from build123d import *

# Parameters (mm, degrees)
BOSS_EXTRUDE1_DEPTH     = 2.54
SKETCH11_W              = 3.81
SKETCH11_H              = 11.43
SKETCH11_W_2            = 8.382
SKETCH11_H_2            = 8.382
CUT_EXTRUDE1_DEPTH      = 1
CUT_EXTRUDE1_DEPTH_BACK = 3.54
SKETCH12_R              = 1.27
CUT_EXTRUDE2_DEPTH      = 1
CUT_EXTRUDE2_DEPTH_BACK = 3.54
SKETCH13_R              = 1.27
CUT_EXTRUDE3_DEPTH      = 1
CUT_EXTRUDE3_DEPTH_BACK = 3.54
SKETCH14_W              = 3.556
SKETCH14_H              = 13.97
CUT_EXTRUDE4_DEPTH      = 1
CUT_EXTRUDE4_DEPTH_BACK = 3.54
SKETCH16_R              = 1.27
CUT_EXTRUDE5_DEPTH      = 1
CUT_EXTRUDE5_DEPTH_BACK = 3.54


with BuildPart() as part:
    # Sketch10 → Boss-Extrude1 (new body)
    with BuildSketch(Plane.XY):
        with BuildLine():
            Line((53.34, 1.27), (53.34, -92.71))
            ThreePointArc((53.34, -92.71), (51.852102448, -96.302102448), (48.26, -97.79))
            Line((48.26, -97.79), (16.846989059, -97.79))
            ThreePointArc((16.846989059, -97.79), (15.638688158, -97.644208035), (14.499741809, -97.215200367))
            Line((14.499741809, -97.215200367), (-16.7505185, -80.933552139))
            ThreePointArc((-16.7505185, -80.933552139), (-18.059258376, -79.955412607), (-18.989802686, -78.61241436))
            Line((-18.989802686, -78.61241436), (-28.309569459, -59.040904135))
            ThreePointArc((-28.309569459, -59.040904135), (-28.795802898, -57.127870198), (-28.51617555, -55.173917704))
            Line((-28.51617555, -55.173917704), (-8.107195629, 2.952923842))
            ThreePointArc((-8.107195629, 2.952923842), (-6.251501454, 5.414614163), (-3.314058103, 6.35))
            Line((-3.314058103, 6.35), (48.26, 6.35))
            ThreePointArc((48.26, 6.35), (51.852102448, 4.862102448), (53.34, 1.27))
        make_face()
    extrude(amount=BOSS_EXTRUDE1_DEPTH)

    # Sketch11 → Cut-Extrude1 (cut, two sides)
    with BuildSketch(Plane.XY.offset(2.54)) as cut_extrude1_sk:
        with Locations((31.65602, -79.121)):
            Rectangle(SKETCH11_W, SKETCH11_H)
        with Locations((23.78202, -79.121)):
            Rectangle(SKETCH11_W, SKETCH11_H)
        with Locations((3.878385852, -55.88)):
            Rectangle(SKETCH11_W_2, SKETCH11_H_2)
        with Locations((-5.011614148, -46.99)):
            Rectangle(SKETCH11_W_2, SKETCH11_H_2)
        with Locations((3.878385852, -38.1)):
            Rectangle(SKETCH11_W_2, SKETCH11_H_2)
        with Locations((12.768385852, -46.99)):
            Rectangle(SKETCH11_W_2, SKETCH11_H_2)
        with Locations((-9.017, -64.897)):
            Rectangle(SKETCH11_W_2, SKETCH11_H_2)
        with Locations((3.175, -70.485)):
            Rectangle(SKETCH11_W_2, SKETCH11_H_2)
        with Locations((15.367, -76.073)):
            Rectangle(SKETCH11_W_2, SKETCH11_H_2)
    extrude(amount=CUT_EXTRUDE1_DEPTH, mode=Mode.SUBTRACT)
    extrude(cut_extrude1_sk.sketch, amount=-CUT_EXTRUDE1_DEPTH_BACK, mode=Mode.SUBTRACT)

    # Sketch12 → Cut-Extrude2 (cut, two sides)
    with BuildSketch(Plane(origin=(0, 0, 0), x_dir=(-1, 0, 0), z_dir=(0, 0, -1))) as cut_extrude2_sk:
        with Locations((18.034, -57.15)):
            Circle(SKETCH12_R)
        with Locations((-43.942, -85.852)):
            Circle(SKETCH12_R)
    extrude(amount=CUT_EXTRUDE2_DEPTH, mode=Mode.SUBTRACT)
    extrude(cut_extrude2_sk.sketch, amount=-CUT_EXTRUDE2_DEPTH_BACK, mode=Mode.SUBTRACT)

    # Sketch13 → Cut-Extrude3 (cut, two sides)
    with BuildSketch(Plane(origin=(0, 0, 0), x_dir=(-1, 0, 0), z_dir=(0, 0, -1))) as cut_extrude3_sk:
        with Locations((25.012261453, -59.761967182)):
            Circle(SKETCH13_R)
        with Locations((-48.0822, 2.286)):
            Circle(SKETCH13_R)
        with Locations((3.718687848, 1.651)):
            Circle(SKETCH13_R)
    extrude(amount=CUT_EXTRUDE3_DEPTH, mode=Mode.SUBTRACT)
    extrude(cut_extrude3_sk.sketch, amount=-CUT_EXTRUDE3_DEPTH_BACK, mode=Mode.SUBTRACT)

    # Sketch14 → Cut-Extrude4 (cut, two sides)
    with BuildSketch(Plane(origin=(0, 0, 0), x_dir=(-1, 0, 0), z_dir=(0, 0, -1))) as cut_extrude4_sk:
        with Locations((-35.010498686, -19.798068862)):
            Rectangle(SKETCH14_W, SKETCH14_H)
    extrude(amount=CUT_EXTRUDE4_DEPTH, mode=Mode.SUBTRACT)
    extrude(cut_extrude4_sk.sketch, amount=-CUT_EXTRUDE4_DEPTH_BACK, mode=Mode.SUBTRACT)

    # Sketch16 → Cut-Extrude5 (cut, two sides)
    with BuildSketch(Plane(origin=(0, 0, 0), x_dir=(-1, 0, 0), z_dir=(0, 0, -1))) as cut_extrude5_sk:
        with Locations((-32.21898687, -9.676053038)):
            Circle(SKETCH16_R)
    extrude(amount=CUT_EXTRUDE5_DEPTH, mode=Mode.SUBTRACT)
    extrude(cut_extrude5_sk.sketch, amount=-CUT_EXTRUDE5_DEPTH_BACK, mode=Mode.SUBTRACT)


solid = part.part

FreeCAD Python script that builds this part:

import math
import FreeCAD as App
import Part
import Sketcher

V = App.Vector
Q = App.Units.Quantity


def add_polygon(sketch, points):
    """Adds a closed chain of lines whose ends are joined by coincident constraints."""
    first, n = sketch.GeometryCount, len(points)
    for a, b in zip(points, points[1:] + points[:1]):
        sketch.addGeometry(Part.LineSegment(App.Vector(*a, 0), App.Vector(*b, 0)), False)
    for i in range(n):
        sketch.addConstraint(Sketcher.Constraint("Coincident", first + i, 2, first + (i + 1) % n, 1))

doc = App.newDocument("Part")
body = doc.addObject("PartDesign::Body", "Body")

sketch1 = body.newObject("Sketcher::SketchObject", "Sketch")
sketch1.AttachmentSupport = (doc.getObject("XY_Plane"), [""])
sketch1.MapMode = "FlatFace"
sketch1.addGeometry([
    Part.LineSegment(V(53.3, -92.7, 0), V(53.3, 1.3, 0)),
    Part.ArcOfCircle(Part.Circle(V(48.3, 1.3, 0), V(0, 0, 1), 5.1), math.radians(0), math.radians(90)),
    Part.LineSegment(V(48.3, 6.3, 0), V(-3.3, 6.3, 0)),
    Part.ArcOfCircle(Part.Circle(V(-3.3, 1.3, 0), V(0, 0, 1), 5.1), math.radians(90), math.radians(161)),
    Part.LineSegment(V(-8.1, 3, 0), V(-28.5, -55.2, 0)),
    Part.ArcOfCircle(Part.Circle(V(-23.7, -56.9, 0), V(0, 0, 1), 5.1), math.radians(161), math.radians(205)),
    Part.LineSegment(V(-28.3, -59, 0), V(-19, -78.6, 0)),
    Part.ArcOfCircle(Part.Circle(V(-14.4, -76.4, 0), V(0, 0, 1), 5.1), math.radians(-155), math.radians(-118)),
    Part.LineSegment(V(-16.8, -80.9, 0), V(14.5, -97.2, 0)),
    Part.ArcOfCircle(Part.Circle(V(16.8, -92.7, 0), V(0, 0, 1), 5.1), math.radians(-118), math.radians(-90)),
    Part.LineSegment(V(16.8, -97.8, 0), V(48.3, -97.8, 0)),
    Part.ArcOfCircle(Part.Circle(V(48.3, -92.7, 0), V(0, 0, 1), 5.1), math.radians(-90), math.radians(0)),
], False)
sketch1.addConstraint([
    Sketcher.Constraint("Tangent", 0, 2, 1, 1),
    Sketcher.Constraint("Tangent", 1, 2, 2, 1),
    Sketcher.Constraint("Tangent", 2, 2, 3, 1),
    Sketcher.Constraint("Tangent", 3, 2, 4, 1),
    Sketcher.Constraint("Tangent", 4, 2, 5, 1),
    Sketcher.Constraint("Tangent", 5, 2, 6, 1),
    Sketcher.Constraint("Tangent", 6, 2, 7, 1),
    Sketcher.Constraint("Tangent", 7, 2, 8, 1),
    Sketcher.Constraint("Tangent", 8, 2, 9, 1),
    Sketcher.Constraint("Tangent", 9, 2, 10, 1),
    Sketcher.Constraint("Tangent", 10, 2, 11, 1),
    Sketcher.Constraint("Tangent", 11, 2, 0, 1),
    Sketcher.Constraint("Vertical", 0),
    Sketcher.Constraint("Horizontal", 2),
    Sketcher.Constraint("Horizontal", 10),
    Sketcher.Constraint("Equal", 1, 3),
    Sketcher.Constraint("Equal", 3, 5),
    Sketcher.Constraint("Equal", 5, 7),
    Sketcher.Constraint("Equal", 7, 9),
    Sketcher.Constraint("Equal", 9, 11),
    Sketcher.Constraint("Radius", 1, Q("0.2 in")),
    Sketcher.Constraint("DistanceY", 0, 1, 0, 2, Q("3.7 in")),
    Sketcher.Constraint("DistanceX", -1, 1, 1, 3, Q("1.9 in")),
    Sketcher.Constraint("DistanceY", -1, 1, 1, 3, Q("0.05 in")),
    Sketcher.Constraint("DistanceX", 2, 2, 2, 1, Q("51.574058 mm")),
    Sketcher.Constraint("DistanceX", 10, 1, 10, 2, Q("31.413011 mm")),
    Sketcher.Constraint("DistanceY", 8, 2, -1, 1, Q("97.2152 mm")),
    Sketcher.Constraint("DistanceX", 5, 2, 7, 3, Q("13.906298 mm")),
    Sketcher.Constraint("Distance", 4, Q("61.60565 mm")),
    Sketcher.Constraint("Distance", 8, Q("35.23735 mm")),
])
pad1 = body.newObject("PartDesign::Pad", "Pad")
pad1.Profile = sketch1
pad1.Length = Q("0.1 in")

sketch2 = body.newObject("Sketcher::SketchObject", "Sketch001")
sketch2.AttachmentSupport = (doc.getObject("XY_Plane"), [""])
sketch2.MapMode = "FlatFace"
sketch2.AttachmentOffset = App.Placement(V(0, 0, 0.1 * 25.4), App.Rotation())
add_polygon(sketch2, [(29.8, -73.4), (29.8, -84.8), (33.6, -84.8), (33.6, -73.4)])
add_polygon(sketch2, [(21.9, -73.4), (21.9, -84.8), (25.7, -84.8), (25.7, -73.4)])
add_polygon(sketch2, [(-0.3, -51.7), (-0.3, -60.1), (8.1, -60.1), (8.1, -51.7)])
add_polygon(sketch2, [(-9.2, -42.8), (-9.2, -51.2), (-0.8, -51.2), (-0.8, -42.8)])
add_polygon(sketch2, [(-0.3, -33.9), (-0.3, -42.3), (8.1, -42.3), (8.1, -33.9)])
add_polygon(sketch2, [(8.6, -42.8), (8.6, -51.2), (17, -51.2), (17, -42.8)])
add_polygon(sketch2, [(-13.2, -60.7), (-13.2, -69.1), (-4.8, -69.1), (-4.8, -60.7)])
add_polygon(sketch2, [(-1, -66.3), (-1, -74.7), (7.4, -74.7), (7.4, -66.3)])
add_polygon(sketch2, [(11.2, -71.9), (11.2, -80.3), (19.6, -80.3), (19.6, -71.9)])
sketch2.addConstraint([
    Sketcher.Constraint("Vertical", 0),
    Sketcher.Constraint("Horizontal", 1),
    Sketcher.Constraint("Vertical", 2),
    Sketcher.Constraint("Horizontal", 3),
    Sketcher.Constraint("Vertical", 4),
    Sketcher.Constraint("Horizontal", 5),
    Sketcher.Constraint("Vertical", 6),
    Sketcher.Constraint("Horizontal", 7),
    Sketcher.Constraint("Vertical", 8),
    Sketcher.Constraint("Horizontal", 9),
    Sketcher.Constraint("Vertical", 10),
    Sketcher.Constraint("Horizontal", 11),
    Sketcher.Constraint("Vertical", 12),
    Sketcher.Constraint("Horizontal", 13),
    Sketcher.Constraint("Vertical", 14),
    Sketcher.Constraint("Horizontal", 15),
    Sketcher.Constraint("Vertical", 16),
    Sketcher.Constraint("Horizontal", 17),
    Sketcher.Constraint("Vertical", 18),
    Sketcher.Constraint("Horizontal", 19),
    Sketcher.Constraint("Vertical", 20),
    Sketcher.Constraint("Horizontal", 21),
    Sketcher.Constraint("Vertical", 22),
    Sketcher.Constraint("Horizontal", 23),
    Sketcher.Constraint("Vertical", 24),
    Sketcher.Constraint("Horizontal", 25),
    Sketcher.Constraint("Vertical", 26),
    Sketcher.Constraint("Horizontal", 27),
    Sketcher.Constraint("Vertical", 28),
    Sketcher.Constraint("Horizontal", 29),
    Sketcher.Constraint("Vertical", 30),
    Sketcher.Constraint("Horizontal", 31),
    Sketcher.Constraint("Vertical", 32),
    Sketcher.Constraint("Horizontal", 33),
    Sketcher.Constraint("Vertical", 34),
    Sketcher.Constraint("Horizontal", 35),
    Sketcher.Constraint("Horizontal", 1, 2, 4, 2),
    Sketcher.Constraint("Horizontal", 3, 2, 6, 2),
    Sketcher.Constraint("Horizontal", 13, 2, 20, 2),
    Sketcher.Constraint("Horizontal", 15, 2, 22, 2),
    Sketcher.Constraint("Vertical", 11, 2, 16, 2),
    Sketcher.Constraint("Vertical", 10, 2, 17, 2),
    Sketcher.Constraint("Equal", 3, 5),
    Sketcher.Constraint("Equal", 11, 13),
    Sketcher.Constraint("Equal", 19, 21),
    Sketcher.Constraint("Equal", 23, 25),
    Sketcher.Constraint("Equal", 27, 29),
    Sketcher.Constraint("Equal", 31, 33),
    Sketcher.Constraint("Equal", 35, 8),
    Sketcher.Constraint("Equal", 10, 12),
    Sketcher.Constraint("Equal", 14, 16),
    Sketcher.Constraint("Equal", 22, 24),
    Sketcher.Constraint("Equal", 26, 28),
    Sketcher.Constraint("Equal", 30, 32),
    Sketcher.Constraint("DistanceX", 1, 1, 1, 2, Q("0.15 in")),
    Sketcher.Constraint("DistanceX", 9, 1, 9, 2, Q("0.33 in")),
    Sketcher.Constraint("DistanceY", 0, 2, 0, 1, Q("0.45 in")),
    Sketcher.Constraint("DistanceY", 10, 2, 18, 2, Q("0.7 in")),
    Sketcher.Constraint("DistanceY", 0, 2, -1, 1, Q("3.34 in")),
    Sketcher.Constraint("DistanceX", 24, 2, -1, 1, Q("0.52 in")),
    Sketcher.Constraint("DistanceY", 24, 2, -1, 1, Q("2.72 in")),
    Sketcher.Constraint("DistanceX", 28, 2, -1, 1, Q("0.04 in")),
    Sketcher.Constraint("DistanceY", 28, 2, -1, 1, Q("2.94 in")),
    Sketcher.Constraint("DistanceX", -1, 1, 32, 2, Q("0.44 in")),
    Sketcher.Constraint("DistanceY", 32, 2, -1, 1, Q("3.16 in")),
    Sketcher.Constraint("DistanceX", 4, 2, 0, 2, Q("0.31 in")),
    Sketcher.Constraint("DistanceX", 12, 2, 11, 2, Q("0.35 in")),
    Sketcher.Constraint("DistanceY", 11, 2, 12, 2, Q("0.02 in")),
    Sketcher.Constraint("DistanceX", 10, 2, 20, 2, Q("0.02 in")),
    Sketcher.Constraint("DistanceY", 8, 2, -1, 1, Q("2.365 in")),
    Sketcher.Constraint("DistanceX", -1, 1, 0, 2, Q("1.1713 in")),
    Sketcher.Constraint("DistanceX", 8, 2, -1, 1, Q("0.312614 mm")),
])
pocket1 = body.newObject("PartDesign::Pocket", "Pocket")
pocket1.Profile = sketch2
pocket1.Type = "ThroughAll"
pocket1.Midplane = True

sketch3 = body.newObject("Sketcher::SketchObject", "Sketch002")
sketch3.AttachmentSupport = (doc.getObject("XY_Plane"), [""])
sketch3.MapMode = "FlatFace"
sketch3.addGeometry([
    Part.Circle(V(-18, -57.1, 0), V(0, 0, 1), 1.3),
    Part.Circle(V(43.9, -85.9, 0), V(0, 0, 1), 1.3),
], False)
sketch3.addConstraint([
    Sketcher.Constraint("Equal", 0, 1),
    Sketcher.Constraint("Diameter", 0, Q("0.1 in")),
    Sketcher.Constraint("DistanceX", 0, 3, -1, 1, Q("0.71 in")),
    Sketcher.Constraint("DistanceY", 0, 3, -1, 1, Q("2.25 in")),
    Sketcher.Constraint("DistanceX", -1, 1, 1, 3, Q("1.73 in")),
    Sketcher.Constraint("DistanceY", 1, 3, -1, 1, Q("3.38 in")),
])
pocket2 = body.newObject("PartDesign::Pocket", "Pocket001")
pocket2.Profile = sketch3
pocket2.Type = "ThroughAll"
pocket2.Midplane = True

sketch4 = body.newObject("Sketcher::SketchObject", "Sketch003")
sketch4.AttachmentSupport = (doc.getObject("XY_Plane"), [""])
sketch4.MapMode = "FlatFace"
sketch4.addGeometry([
    Part.Circle(V(-25, -59.8, 0), V(0, 0, 1), 1.3),
    Part.Circle(V(48.1, 2.3, 0), V(0, 0, 1), 1.3),
    Part.Circle(V(-3.7, 1.7, 0), V(0, 0, 1), 1.3),
], False)
sketch4.addConstraint([
    Sketcher.Constraint("Equal", 0, 1),
    Sketcher.Constraint("Equal", 1, 2),
    Sketcher.Constraint("Diameter", 0, Q("0.1 in")),
    Sketcher.Constraint("DistanceY", -1, 1, 1, 3, Q("0.09 in")),
    Sketcher.Constraint("DistanceX", -1, 1, 1, 3, Q("1.893 in")),
    Sketcher.Constraint("DistanceY", -1, 1, 2, 3, Q("0.065 in")),
    Sketcher.Constraint("DistanceX", 0, 3, -1, 1, Q("25.012261 mm")),
    Sketcher.Constraint("DistanceY", 0, 3, -1, 1, Q("59.761967 mm")),
    Sketcher.Constraint("DistanceX", 2, 3, -1, 1, Q("3.718688 mm")),
])
pocket3 = body.newObject("PartDesign::Pocket", "Pocket002")
pocket3.Profile = sketch4
pocket3.Type = "ThroughAll"
pocket3.Midplane = True

sketch5 = body.newObject("Sketcher::SketchObject", "Sketch004")
sketch5.AttachmentSupport = (doc.getObject("XY_Plane"), [""])
sketch5.MapMode = "FlatFace"
add_polygon(sketch5, [(36.8, -12.8), (36.8, -26.8), (33.2, -26.8), (33.2, -12.8)])
sketch5.addConstraint([
    Sketcher.Constraint("Vertical", 0),
    Sketcher.Constraint("Horizontal", 1),
    Sketcher.Constraint("Vertical", 2),
    Sketcher.Constraint("Horizontal", 3),
    Sketcher.Constraint("DistanceX", 1, 2, 1, 1, Q("0.14 in")),
    Sketcher.Constraint("DistanceY", 0, 2, 0, 1, Q("0.55 in")),
    Sketcher.Constraint("DistanceX", -1, 1, 0, 2, Q("36.788499 mm")),
    Sketcher.Constraint("DistanceY", 0, 2, -1, 1, Q("26.783069 mm")),
])
pocket4 = body.newObject("PartDesign::Pocket", "Pocket003")
pocket4.Profile = sketch5
pocket4.Type = "ThroughAll"
pocket4.Midplane = True

sketch6 = body.newObject("Sketcher::SketchObject", "Sketch005")
sketch6.AttachmentSupport = (doc.getObject("XY_Plane"), [""])
sketch6.MapMode = "FlatFace"
sketch6.addGeometry(Part.Circle(V(32.2, -9.7, 0), V(0, 0, 1), 1.3), False)
sketch6.addConstraint([
    Sketcher.Constraint("Diameter", 0, Q("0.1 in")),
    Sketcher.Constraint("DistanceX", -1, 1, 0, 3, Q("32.218987 mm")),
    Sketcher.Constraint("DistanceY", 0, 3, -1, 1, Q("9.676053 mm")),
])
pocket5 = body.newObject("PartDesign::Pocket", "Pocket004")
pocket5.Profile = sketch6
pocket5.Type = "ThroughAll"
pocket5.Midplane = True

doc.recompute()
